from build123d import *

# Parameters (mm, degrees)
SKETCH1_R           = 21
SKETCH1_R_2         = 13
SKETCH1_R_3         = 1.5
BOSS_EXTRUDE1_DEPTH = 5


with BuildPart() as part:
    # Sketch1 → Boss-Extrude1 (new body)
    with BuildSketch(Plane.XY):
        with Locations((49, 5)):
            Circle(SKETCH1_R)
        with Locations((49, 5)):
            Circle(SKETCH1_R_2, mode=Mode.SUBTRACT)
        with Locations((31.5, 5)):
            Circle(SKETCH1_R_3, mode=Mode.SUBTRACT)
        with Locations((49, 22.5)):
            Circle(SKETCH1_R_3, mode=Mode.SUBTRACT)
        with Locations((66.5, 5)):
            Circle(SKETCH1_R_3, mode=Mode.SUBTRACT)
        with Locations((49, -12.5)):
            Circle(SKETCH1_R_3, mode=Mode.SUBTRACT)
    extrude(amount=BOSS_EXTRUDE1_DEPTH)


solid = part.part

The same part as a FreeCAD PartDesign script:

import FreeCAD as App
import Part
import Sketcher
from FreeCAD import Vector

doc = App.newDocument("Part")
body = doc.addObject("PartDesign::Body", "Body")

sketch1 = body.newObject("Sketcher::SketchObject", "Sketch")
sketch1.AttachmentSupport = (doc.getObject("XY_Plane"), [""])
sketch1.MapMode = "FlatFace"
sketch1.addGeometry([
    Part.Circle(Vector(49, 5, 0), Vector(0, 0, 1), 21),
    Part.Circle(Vector(49, -12.5, 0), Vector(0, 0, 1), 1.5),
    Part.Circle(Vector(31.5, 5, 0), Vector(0, 0, 1), 1.5),
    Part.Circle(Vector(49, 5, 0), Vector(0, 0, 1), 13),
    Part.Circle(Vector(66.5, 5, 0), Vector(0, 0, 1), 1.5),
    Part.Circle(Vector(49, 22.5, 0), Vector(0, 0, 1), 1.5),
], False)
sketch1.addConstraint([
    Sketcher.Constraint("Coincident", 3, 3, 0, 3),
    Sketcher.Constraint("Equal", 1, 2),
    Sketcher.Constraint("Equal", 2, 4),
    Sketcher.Constraint("Equal", 4, 5),
    Sketcher.Constraint("Horizontal", 0, 3, 2, 3),
    Sketcher.Constraint("Horizontal", 3, 3, 4, 3),
    Sketcher.Constraint("Vertical", 0, 3, 1, 3),
    Sketcher.Constraint("Vertical", 3, 3, 5, 3),
    Sketcher.Constraint("Diameter", 0, 42.0),
    Sketcher.Constraint("Diameter", 1, 3.0),
    Sketcher.Constraint("Diameter", 3, 26.0),
    Sketcher.Constraint("DistanceX", -1, 1, 0, 3, 49.0),
    Sketcher.Constraint("DistanceY", -1, 1, 0, 3, 5.0),
    Sketcher.Constraint("DistanceX", 2, 3, 4, 3, 35.0),
    Sketcher.Constraint("DistanceY", 1, 3, 5, 3, 35.0),
    Sketcher.Constraint("DistanceY", 1, 3, -1, 1, 12.5),
    Sketcher.Constraint("DistanceX", -1, 1, 2, 3, 31.5),
])
pad1 = body.newObject("PartDesign::Pad", "Pad")
pad1.Profile = sketch1
pad1.Length = 5

doc.recompute()
